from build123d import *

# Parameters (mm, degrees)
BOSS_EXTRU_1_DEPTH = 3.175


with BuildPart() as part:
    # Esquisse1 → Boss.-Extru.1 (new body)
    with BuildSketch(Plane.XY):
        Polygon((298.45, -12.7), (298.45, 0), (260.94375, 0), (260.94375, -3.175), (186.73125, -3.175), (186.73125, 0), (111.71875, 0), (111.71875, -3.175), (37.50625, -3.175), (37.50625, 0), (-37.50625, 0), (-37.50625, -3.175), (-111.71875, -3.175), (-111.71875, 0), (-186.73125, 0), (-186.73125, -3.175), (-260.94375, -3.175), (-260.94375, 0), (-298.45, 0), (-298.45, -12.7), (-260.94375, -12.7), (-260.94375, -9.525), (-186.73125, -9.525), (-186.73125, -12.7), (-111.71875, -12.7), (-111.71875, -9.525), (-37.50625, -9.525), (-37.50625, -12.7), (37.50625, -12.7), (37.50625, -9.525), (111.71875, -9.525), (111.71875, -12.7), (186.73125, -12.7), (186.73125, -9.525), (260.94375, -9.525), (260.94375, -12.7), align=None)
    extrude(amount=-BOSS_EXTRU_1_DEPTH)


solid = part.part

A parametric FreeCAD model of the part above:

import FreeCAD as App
import Part
import Sketcher

V = App.Vector
Q = App.Units.Quantity


def add_polygon(sketch, points):
    """Adds a closed chain of lines whose ends are joined by coincident constraints."""
    first, n = sketch.GeometryCount, len(points)
    for a, b in zip(points, points[1:] + points[:1]):
        sketch.addGeometry(Part.LineSegment(App.Vector(*a, 0), App.Vector(*b, 0)), False)
    for i in range(n):
        sketch.addConstraint(Sketcher.Constraint("Coincident", first + i, 2, first + (i + 1) % n, 1))

doc = App.newDocument("Part")
params = doc.addObject("Spreadsheet::Sheet", "Params")
for row, (alias, value) in enumerate([
    ("sketch1_height", "0.5 in"),
    ("sketch1_height2", "0.125 in"),
    ("pad1_length", "0.125 in"),
], start=1):
    params.set(f"A{row}", alias)
    params.set(f"B{row}", "=" + value)
    params.setAlias(f"B{row}", alias)

body = doc.addObject("PartDesign::Body", "Body")

# Sketch on XY plane
sketch1 = body.newObject("Sketcher::SketchObject", "Sketch")
sketch1.AttachmentSupport = (doc.getObject("XY_Plane"), [""])
sketch1.MapMode = "FlatFace"
add_polygon(sketch1, [(298.4, -12.7), (298.4, 0), (260.9, 0), (260.9, -3.2), (186.7, -3.2), (186.7, 0), (111.7, 0), (111.7, -3.2), (37.5, -3.2), (37.5, 0), (-37.5, 0), (-37.5, -3.2), (-111.7, -3.2), (-111.7, 0), (-186.7, 0), (-186.7, -3.2), (-260.9, -3.2), (-260.9, 0), (-298.4, 0), (-298.4, -12.7), (-260.9, -12.7), (-260.9, -9.5), (-186.7, -9.5), (-186.7, -12.7), (-111.7, -12.7), (-111.7, -9.5), (-37.5, -9.5), (-37.5, -12.7), (37.5, -12.7), (37.5, -9.5), (111.7, -9.5), (111.7, -12.7), (186.7, -12.7), (186.7, -9.5), (260.9, -9.5), (260.9, -12.7)])  # lines 0-35
sketch1.addConstraint([
    Sketcher.Constraint("Vertical", 0),
    Sketcher.Constraint("Horizontal", 1),
    Sketcher.Constraint("Vertical", 2),
    Sketcher.Constraint("Horizontal", 3),
    Sketcher.Constraint("Vertical", 4),
    Sketcher.Constraint("Horizontal", 5),
    Sketcher.Constraint("Vertical", 6),
    Sketcher.Constraint("Horizontal", 7),
    Sketcher.Constraint("Vertical", 8),
    Sketcher.Constraint("Horizontal", 9),
    Sketcher.Constraint("Vertical", 10),
    Sketcher.Constraint("Horizontal", 11),
    Sketcher.Constraint("Vertical", 12),
    Sketcher.Constraint("Horizontal", 13),
    Sketcher.Constraint("Vertical", 14),
    Sketcher.Constraint("Horizontal", 15),
    Sketcher.Constraint("Vertical", 16),
    Sketcher.Constraint("Horizontal", 17),
    Sketcher.Constraint("Vertical", 18),
    Sketcher.Constraint("Horizontal", 19),
    Sketcher.Constraint("Vertical", 20),
    Sketcher.Constraint("Horizontal", 21),
    Sketcher.Constraint("Vertical", 22),
    Sketcher.Constraint("Horizontal", 23),
    Sketcher.Constraint("Vertical", 24),
    Sketcher.Constraint("Horizontal", 25),
    Sketcher.Constraint("Vertical", 26),
    Sketcher.Constraint("Horizontal", 27),
    Sketcher.Constraint("Vertical", 28),
    Sketcher.Constraint("Horizontal", 29),
    Sketcher.Constraint("Vertical", 30),
    Sketcher.Constraint("Horizontal", 31),
    Sketcher.Constraint("Vertical", 32),
    Sketcher.Constraint("Horizontal", 33),
    Sketcher.Constraint("Vertical", 34),
    Sketcher.Constraint("Horizontal", 35),
    Sketcher.Constraint("Symmetric", 8, 2, 9, 2, -1, 1),
    Sketcher.Constraint("Symmetric", 5, 2, 12, 2, -1, 1),
    Sketcher.Constraint("Symmetric", 1, 2, 16, 2, -1, 1),
    Sketcher.Constraint("Symmetric", 4, 2, 13, 2, -2),
    Sketcher.Constraint("Symmetric", 0, 2, 17, 2, -2),
    Sketcher.Constraint("Symmetric", 25, 2, 28, 2, -2),
    Sketcher.Constraint("Symmetric", 23, 2, 30, 2, -2),
    Sketcher.Constraint("Symmetric", 21, 2, 32, 2, -2),
    Sketcher.Constraint("Symmetric", 19, 2, 34, 2, -2),
    Sketcher.Constraint("Horizontal", 3, 2, 6, 2),
    Sketcher.Constraint("Horizontal", 7, 2, 10, 2),
    Sketcher.Constraint("Horizontal", 11, 2, 14, 2),
    Sketcher.Constraint("Horizontal", 19, 2, 22, 2),
    Sketcher.Constraint("Horizontal", 21, 2, 24, 2),
    Sketcher.Constraint("Horizontal", 23, 2, 26, 2),
    Sketcher.Constraint("Vertical", 16, 2, 19, 2),
    Sketcher.Constraint("Vertical", 14, 2, 21, 2),
    Sketcher.Constraint("Vertical", 12, 2, 23, 2),
    Sketcher.Constraint("Vertical", 10, 2, 25, 2),
    Sketcher.Constraint("Equal", 3, 7),
    Sketcher.Constraint("Equal", 5, 9),
    Sketcher.Constraint("Equal", 16, 20),
    Sketcher.Constraint("DistanceY", 0, 1, 0, 2, Q("0.5 in")),
    Sketcher.Constraint("DistanceY", 2, 2, 2, 1, Q("0.125 in")),
    Sketcher.Constraint("DistanceX", -1, 1, 0, 2, Q("11.75 in")),
    Sketcher.Constraint("DistanceX", 5, 2, 1, 2, Q("5.875 in")),
    Sketcher.Constraint("DistanceX", 3, 2, 3, 1, Q("74.2125 mm")),
])
sketch1.setExpression("Constraints[94]", "Params.sketch1_height")
sketch1.setExpression("Constraints[95]", "Params.sketch1_height2")
pad1 = body.newObject("PartDesign::Pad", "Pad")
pad1.Profile = sketch1
pad1.setExpression("Length", "Params.pad1_length")
pad1.Reversed = True

doc.recompute()
